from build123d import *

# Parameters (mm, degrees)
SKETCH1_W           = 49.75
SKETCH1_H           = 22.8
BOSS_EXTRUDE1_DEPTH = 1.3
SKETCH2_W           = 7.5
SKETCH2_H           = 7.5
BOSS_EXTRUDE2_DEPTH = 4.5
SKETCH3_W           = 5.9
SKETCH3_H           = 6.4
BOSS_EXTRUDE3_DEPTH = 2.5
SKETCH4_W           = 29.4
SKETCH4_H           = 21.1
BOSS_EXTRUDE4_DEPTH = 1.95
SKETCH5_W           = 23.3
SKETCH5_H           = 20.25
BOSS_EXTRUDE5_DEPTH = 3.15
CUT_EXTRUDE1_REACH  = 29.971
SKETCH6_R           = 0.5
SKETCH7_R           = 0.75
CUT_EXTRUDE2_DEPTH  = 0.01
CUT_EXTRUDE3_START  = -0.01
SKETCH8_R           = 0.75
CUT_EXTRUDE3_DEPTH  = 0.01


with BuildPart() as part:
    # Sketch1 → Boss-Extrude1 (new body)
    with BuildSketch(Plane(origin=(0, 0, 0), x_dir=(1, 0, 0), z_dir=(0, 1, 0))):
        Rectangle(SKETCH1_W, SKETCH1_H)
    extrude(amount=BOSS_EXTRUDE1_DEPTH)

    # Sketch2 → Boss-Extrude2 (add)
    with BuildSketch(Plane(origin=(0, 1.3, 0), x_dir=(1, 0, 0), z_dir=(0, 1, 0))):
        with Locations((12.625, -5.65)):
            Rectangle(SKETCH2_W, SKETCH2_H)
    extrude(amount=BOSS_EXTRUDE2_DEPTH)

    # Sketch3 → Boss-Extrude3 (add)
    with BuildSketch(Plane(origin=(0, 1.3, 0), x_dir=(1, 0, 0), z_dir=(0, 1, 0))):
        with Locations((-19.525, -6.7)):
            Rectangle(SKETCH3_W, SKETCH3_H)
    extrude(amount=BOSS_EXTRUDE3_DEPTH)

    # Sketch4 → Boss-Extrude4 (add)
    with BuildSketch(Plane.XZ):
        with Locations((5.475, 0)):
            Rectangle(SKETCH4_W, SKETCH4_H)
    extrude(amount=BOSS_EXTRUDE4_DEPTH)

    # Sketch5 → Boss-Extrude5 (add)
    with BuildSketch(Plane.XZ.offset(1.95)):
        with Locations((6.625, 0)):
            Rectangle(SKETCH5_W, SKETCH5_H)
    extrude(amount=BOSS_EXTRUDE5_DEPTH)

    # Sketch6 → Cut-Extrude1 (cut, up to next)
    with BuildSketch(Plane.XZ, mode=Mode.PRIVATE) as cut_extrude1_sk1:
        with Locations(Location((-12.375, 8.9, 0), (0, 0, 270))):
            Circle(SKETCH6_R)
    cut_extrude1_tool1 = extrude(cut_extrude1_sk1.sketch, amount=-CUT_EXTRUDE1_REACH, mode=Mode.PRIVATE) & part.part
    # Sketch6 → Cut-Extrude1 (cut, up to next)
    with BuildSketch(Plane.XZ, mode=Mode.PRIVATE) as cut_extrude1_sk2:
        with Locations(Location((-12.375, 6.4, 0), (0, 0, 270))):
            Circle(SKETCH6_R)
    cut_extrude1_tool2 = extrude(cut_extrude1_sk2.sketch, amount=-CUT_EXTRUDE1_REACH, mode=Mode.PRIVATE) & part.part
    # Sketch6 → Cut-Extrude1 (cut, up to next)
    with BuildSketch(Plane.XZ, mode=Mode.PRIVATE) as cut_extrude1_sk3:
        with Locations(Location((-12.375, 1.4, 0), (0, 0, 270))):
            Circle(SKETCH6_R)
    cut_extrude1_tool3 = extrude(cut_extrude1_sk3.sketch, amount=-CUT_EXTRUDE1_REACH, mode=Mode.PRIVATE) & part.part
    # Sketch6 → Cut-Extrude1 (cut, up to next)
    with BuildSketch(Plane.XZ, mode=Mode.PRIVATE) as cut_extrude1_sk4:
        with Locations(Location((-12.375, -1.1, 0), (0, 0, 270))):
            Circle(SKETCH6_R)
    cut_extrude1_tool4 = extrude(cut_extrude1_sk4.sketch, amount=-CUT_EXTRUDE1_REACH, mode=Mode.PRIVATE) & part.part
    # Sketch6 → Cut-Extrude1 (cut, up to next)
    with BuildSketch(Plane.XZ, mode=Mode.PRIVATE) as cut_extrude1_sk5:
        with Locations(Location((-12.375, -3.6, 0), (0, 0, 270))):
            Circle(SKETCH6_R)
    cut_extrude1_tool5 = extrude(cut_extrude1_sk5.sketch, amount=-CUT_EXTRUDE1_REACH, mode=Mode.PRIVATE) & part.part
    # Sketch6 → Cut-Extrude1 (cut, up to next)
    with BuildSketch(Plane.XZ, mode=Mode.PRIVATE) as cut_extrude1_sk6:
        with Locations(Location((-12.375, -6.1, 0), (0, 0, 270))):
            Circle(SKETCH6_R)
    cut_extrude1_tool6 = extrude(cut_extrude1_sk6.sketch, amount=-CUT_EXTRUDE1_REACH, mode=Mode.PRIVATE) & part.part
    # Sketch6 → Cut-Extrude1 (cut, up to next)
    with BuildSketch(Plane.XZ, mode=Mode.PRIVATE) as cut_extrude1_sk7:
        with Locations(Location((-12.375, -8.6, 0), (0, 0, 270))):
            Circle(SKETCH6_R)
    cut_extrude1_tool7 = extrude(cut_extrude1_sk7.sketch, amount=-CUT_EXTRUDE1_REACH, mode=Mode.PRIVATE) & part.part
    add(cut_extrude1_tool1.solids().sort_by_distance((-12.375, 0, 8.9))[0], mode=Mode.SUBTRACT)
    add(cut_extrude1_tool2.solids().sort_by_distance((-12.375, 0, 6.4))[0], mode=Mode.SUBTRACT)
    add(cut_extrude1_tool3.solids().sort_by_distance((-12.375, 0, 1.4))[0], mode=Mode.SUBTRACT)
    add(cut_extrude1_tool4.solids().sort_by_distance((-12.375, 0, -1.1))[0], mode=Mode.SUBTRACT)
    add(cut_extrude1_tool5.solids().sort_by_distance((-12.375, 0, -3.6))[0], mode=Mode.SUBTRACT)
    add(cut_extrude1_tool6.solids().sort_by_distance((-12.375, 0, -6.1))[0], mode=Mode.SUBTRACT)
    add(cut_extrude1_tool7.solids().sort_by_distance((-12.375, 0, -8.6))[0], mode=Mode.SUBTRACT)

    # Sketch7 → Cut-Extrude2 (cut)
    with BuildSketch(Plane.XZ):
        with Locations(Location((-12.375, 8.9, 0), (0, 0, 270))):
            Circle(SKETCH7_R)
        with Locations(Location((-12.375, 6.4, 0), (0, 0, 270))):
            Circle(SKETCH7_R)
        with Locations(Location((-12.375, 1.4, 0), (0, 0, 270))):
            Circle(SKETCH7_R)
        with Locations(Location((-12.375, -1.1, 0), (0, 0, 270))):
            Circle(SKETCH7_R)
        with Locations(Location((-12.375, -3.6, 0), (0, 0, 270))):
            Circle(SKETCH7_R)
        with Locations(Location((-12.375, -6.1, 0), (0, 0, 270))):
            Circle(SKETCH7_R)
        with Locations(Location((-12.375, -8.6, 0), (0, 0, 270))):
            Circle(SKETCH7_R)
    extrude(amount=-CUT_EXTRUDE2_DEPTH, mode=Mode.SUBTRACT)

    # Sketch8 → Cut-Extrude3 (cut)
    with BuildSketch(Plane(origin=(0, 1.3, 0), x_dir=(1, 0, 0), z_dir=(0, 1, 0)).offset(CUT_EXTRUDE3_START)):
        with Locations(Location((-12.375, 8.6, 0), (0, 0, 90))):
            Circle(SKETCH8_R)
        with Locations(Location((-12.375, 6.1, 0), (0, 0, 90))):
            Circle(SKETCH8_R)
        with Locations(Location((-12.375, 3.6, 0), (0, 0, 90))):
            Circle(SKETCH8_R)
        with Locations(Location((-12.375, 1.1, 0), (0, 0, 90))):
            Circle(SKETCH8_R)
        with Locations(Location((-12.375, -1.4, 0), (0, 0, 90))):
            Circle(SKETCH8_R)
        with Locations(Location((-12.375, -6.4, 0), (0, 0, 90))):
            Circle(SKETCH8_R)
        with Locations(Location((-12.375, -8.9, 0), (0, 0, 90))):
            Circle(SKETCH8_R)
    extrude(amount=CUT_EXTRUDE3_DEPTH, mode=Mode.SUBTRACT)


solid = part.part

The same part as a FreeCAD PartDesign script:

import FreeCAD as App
import Part
import Sketcher
from FreeCAD import Vector
Q = App.Units.Quantity

doc = App.newDocument("Part")
body = doc.addObject("PartDesign::Body", "Body")

sketch1 = body.newObject("Sketcher::SketchObject", "Sketch")
sketch1.AttachmentSupport = (doc.getObject("XZ_Plane"), [""])
sketch1.MapMode = "FlatFace"
sketch1.addGeometry(Part.LineSegment(Vector(-24.875, -11.4, 0), Vector(-24.875, 11.4, 0)), False)
sketch1.addGeometry(Part.LineSegment(Vector(-24.875, 11.4, 0), Vector(24.875, 11.4, 0)), False)
sketch1.addGeometry(Part.LineSegment(Vector(24.875, 11.4, 0), Vector(24.875, -11.4, 0)), False)
sketch1.addGeometry(Part.LineSegment(Vector(24.875, -11.4, 0), Vector(-24.875, -11.4, 0)), False)
sketch1.addConstraint(Sketcher.Constraint("Coincident", 0, 2, 1, 1))
sketch1.addConstraint(Sketcher.Constraint("Coincident", 1, 2, 2, 1))
sketch1.addConstraint(Sketcher.Constraint("Coincident", 2, 2, 3, 1))
sketch1.addConstraint(Sketcher.Constraint("Coincident", 3, 2, 0, 1))
sketch1.addConstraint(Sketcher.Constraint("Vertical", 0))
sketch1.addConstraint(Sketcher.Constraint("Horizontal", 1))
sketch1.addConstraint(Sketcher.Constraint("Vertical", 2))
sketch1.addConstraint(Sketcher.Constraint("Horizontal", 3))
sketch1.addConstraint(Sketcher.Constraint("Symmetric", 0, 2, 2, 2, -1, 1))
sketch1.addConstraint(Sketcher.Constraint("DistanceY", 0, 1, 0, 2, Q("22.8 mm")))
sketch1.addConstraint(Sketcher.Constraint("DistanceX", 1, 1, 1, 2, Q("49.75 mm")))
pad1 = body.newObject("PartDesign::Pad", "Pad")
pad1.Profile = sketch1
pad1.Length = 1.3
pad1.Reversed = True

sketch2 = body.newObject("Sketcher::SketchObject", "Sketch001")
sketch2.AttachmentSupport = (doc.getObject("XZ_Plane"), [""])
sketch2.MapMode = "FlatFace"
sketch2.AttachmentOffset = App.Placement(Vector(0, 0, -1.3), App.Rotation())
sketch2.addGeometry(Part.LineSegment(Vector(8.875, 1.9, 0), Vector(8.875, 9.4, 0)), False)
sketch2.addGeometry(Part.LineSegment(Vector(8.875, 9.4, 0), Vector(16.375, 9.4, 0)), False)
sketch2.addGeometry(Part.LineSegment(Vector(16.375, 9.4, 0), Vector(16.375, 1.9, 0)), False)
sketch2.addGeometry(Part.LineSegment(Vector(16.375, 1.9, 0), Vector(8.875, 1.9, 0)), False)
sketch2.addConstraint(Sketcher.Constraint("Coincident", 0, 2, 1, 1))
sketch2.addConstraint(Sketcher.Constraint("Coincident", 1, 2, 2, 1))
sketch2.addConstraint(Sketcher.Constraint("Coincident", 2, 2, 3, 1))
sketch2.addConstraint(Sketcher.Constraint("Coincident", 3, 2, 0, 1))
sketch2.addConstraint(Sketcher.Constraint("Vertical", 0))
sketch2.addConstraint(Sketcher.Constraint("Horizontal", 1))
sketch2.addConstraint(Sketcher.Constraint("Vertical", 2))
sketch2.addConstraint(Sketcher.Constraint("Horizontal", 3))
sketch2.addConstraint(Sketcher.Constraint("Equal", 3, 0))
sketch2.addConstraint(Sketcher.Constraint("DistanceX", 1, 1, 1, 2, Q("7.5 mm")))
sketch2.addConstraint(Sketcher.Constraint("DistanceY", -1, 1, 0, 2, Q("9.4 mm")))
sketch2.addConstraint(Sketcher.Constraint("DistanceX", -1, 1, 0, 2, Q("8.875 mm")))
pad2 = body.newObject("PartDesign::Pad", "Pad001")
pad2.Profile = sketch2
pad2.Length = 4.5
pad2.Reversed = True

sketch3 = body.newObject("Sketcher::SketchObject", "Sketch002")
sketch3.AttachmentSupport = (doc.getObject("XZ_Plane"), [""])
sketch3.MapMode = "FlatFace"
sketch3.AttachmentOffset = App.Placement(Vector(0, 0, -1.3), App.Rotation())
sketch3.addGeometry(Part.LineSegment(Vector(-22.475, 3.5, 0), Vector(-22.475, 9.9, 0)), False)
sketch3.addGeometry(Part.LineSegment(Vector(-22.475, 9.9, 0), Vector(-16.575, 9.9, 0)), False)
sketch3.addGeometry(Part.LineSegment(Vector(-16.575, 9.9, 0), Vector(-16.575, 3.5, 0)), False)
sketch3.addGeometry(Part.LineSegment(Vector(-16.575, 3.5, 0), Vector(-22.475, 3.5, 0)), False)
sketch3.addConstraint(Sketcher.Constraint("Coincident", 0, 2, 1, 1))
sketch3.addConstraint(Sketcher.Constraint("Coincident", 1, 2, 2, 1))
sketch3.addConstraint(Sketcher.Constraint("Coincident", 2, 2, 3, 1))
sketch3.addConstraint(Sketcher.Constraint("Coincident", 3, 2, 0, 1))
sketch3.addConstraint(Sketcher.Constraint("Vertical", 0))
sketch3.addConstraint(Sketcher.Constraint("Horizontal", 1))
sketch3.addConstraint(Sketcher.Constraint("Vertical", 2))
sketch3.addConstraint(Sketcher.Constraint("Horizontal", 3))
sketch3.addConstraint(Sketcher.Constraint("DistanceX", 1, 1, 1, 2, Q("5.9 mm")))
sketch3.addConstraint(Sketcher.Constraint("DistanceY", 0, 1, 0, 2, Q("6.4 mm")))
sketch3.addConstraint(Sketcher.Constraint("DistanceY", -1, 1, 0, 2, Q("9.9 mm")))
sketch3.addConstraint(Sketcher.Constraint("DistanceX", 0, 2, -1, 1, Q("22.475 mm")))
pad3 = body.newObject("PartDesign::Pad", "Pad002")
pad3.Profile = sketch3
pad3.Length = 2.5
pad3.Reversed = True

sketch4 = body.newObject("Sketcher::SketchObject", "Sketch003")
sketch4.AttachmentSupport = (doc.getObject("XZ_Plane"), [""])
sketch4.MapMode = "FlatFace"
sketch4.addGeometry(Part.LineSegment(Vector(-9.225, 10.55, 0), Vector(-9.225, -10.55, 0)), False)
sketch4.addGeometry(Part.LineSegment(Vector(-9.225, -10.55, 0), Vector(20.175, -10.55, 0)), False)
sketch4.addGeometry(Part.LineSegment(Vector(20.175, -10.55, 0), Vector(20.175, 10.55, 0)), False)
sketch4.addGeometry(Part.LineSegment(Vector(20.175, 10.55, 0), Vector(-9.225, 10.55, 0)), False)
sketch4.addConstraint(Sketcher.Constraint("Coincident", 0, 2, 1, 1))
sketch4.addConstraint(Sketcher.Constraint("Coincident", 1, 2, 2, 1))
sketch4.addConstraint(Sketcher.Constraint("Coincident", 2, 2, 3, 1))
sketch4.addConstraint(Sketcher.Constraint("Coincident", 3, 2, 0, 1))
sketch4.addConstraint(Sketcher.Constraint("Vertical", 0))
sketch4.addConstraint(Sketcher.Constraint("Horizontal", 1))
sketch4.addConstraint(Sketcher.Constraint("Vertical", 2))
sketch4.addConstraint(Sketcher.Constraint("Horizontal", 3))
sketch4.addConstraint(Sketcher.Constraint("DistanceX", 1, 1, 1, 2, Q("29.4 mm")))
sketch4.addConstraint(Sketcher.Constraint("DistanceY", 0, 2, 0, 1, Q("21.1 mm")))
sketch4.addConstraint(Sketcher.Constraint("DistanceY", 0, 2, -1, 1, Q("10.55 mm")))
sketch4.addConstraint(Sketcher.Constraint("DistanceX", 0, 2, -1, 1, Q("9.225 mm")))
pad4 = body.newObject("PartDesign::Pad", "Pad003")
pad4.Profile = sketch4
pad4.Length = 1.95

sketch5 = body.newObject("Sketcher::SketchObject", "Sketch004")
sketch5.AttachmentSupport = (doc.getObject("XZ_Plane"), [""])
sketch5.MapMode = "FlatFace"
sketch5.AttachmentOffset = App.Placement(Vector(0, 0, 1.95), App.Rotation())
sketch5.addGeometry(Part.LineSegment(Vector(-5.025, 10.125, 0), Vector(-5.025, -10.125, 0)), False)
sketch5.addGeometry(Part.LineSegment(Vector(-5.025, -10.125, 0), Vector(18.275, -10.125, 0)), False)
sketch5.addGeometry(Part.LineSegment(Vector(18.275, -10.125, 0), Vector(18.275, 10.125, 0)), False)
sketch5.addGeometry(Part.LineSegment(Vector(18.275, 10.125, 0), Vector(-5.025, 10.125, 0)), False)
sketch5.addConstraint(Sketcher.Constraint("Coincident", 0, 2, 1, 1))
sketch5.addConstraint(Sketcher.Constraint("Coincident", 1, 2, 2, 1))
sketch5.addConstraint(Sketcher.Constraint("Coincident", 2, 2, 3, 1))
sketch5.addConstraint(Sketcher.Constraint("Coincident", 3, 2, 0, 1))
sketch5.addConstraint(Sketcher.Constraint("Vertical", 0))
sketch5.addConstraint(Sketcher.Constraint("Horizontal", 1))
sketch5.addConstraint(Sketcher.Constraint("Vertical", 2))
sketch5.addConstraint(Sketcher.Constraint("Horizontal", 3))
sketch5.addConstraint(Sketcher.Constraint("DistanceX", 1, 1, 1, 2, Q("23.3 mm")))
sketch5.addConstraint(Sketcher.Constraint("DistanceY", 0, 2, 0, 1, Q("20.25 mm")))
sketch5.addConstraint(Sketcher.Constraint("DistanceX", 0, 2, -1, 1, Q("5.025 mm")))
sketch5.addConstraint(Sketcher.Constraint("DistanceY", 0, 2, -1, 1, Q("10.125 mm")))
pad5 = body.newObject("PartDesign::Pad", "Pad004")
pad5.Profile = sketch5
pad5.Length = 3.15

sketch6 = body.newObject("Sketcher::SketchObject", "Sketch005")
sketch6.AttachmentSupport = (doc.getObject("XZ_Plane"), [""])
sketch6.MapMode = "FlatFace"
sketch6.addGeometry(Part.Circle(Vector(-12.375, 8.9, 0), Vector(0, 0, 1), 0.5), False)
sketch6.addConstraint(Sketcher.Constraint("Diameter", 0, Q("1 mm")))
sketch6.addConstraint(Sketcher.Constraint("DistanceY", -1, 1, 0, 3, Q("8.9 mm")))
sketch6.addConstraint(Sketcher.Constraint("DistanceX", 0, 3, -1, 1, Q("12.375 mm")))
pocket1 = body.newObject("PartDesign::Pocket", "Pocket")
pocket1.Profile = sketch6
pocket1.Type = "UpToFirst"

sketch7 = body.newObject("Sketcher::SketchObject", "Sketch006")
sketch7.AttachmentSupport = (doc.getObject("XZ_Plane"), [""])
sketch7.MapMode = "FlatFace"
sketch7.addGeometry(Part.Circle(Vector(-12.375, 6.4, 0), Vector(0, 0, 1), 0.5), False)
sketch7.addConstraint(Sketcher.Constraint("Diameter", 0, Q("1 mm")))
sketch7.addConstraint(Sketcher.Constraint("DistanceY", -1, 1, 0, 3, Q("6.4 mm")))
sketch7.addConstraint(Sketcher.Constraint("DistanceX", 0, 3, -1, 1, Q("12.375 mm")))
pocket2 = body.newObject("PartDesign::Pocket", "Pocket001")
pocket2.Profile = sketch7
pocket2.Type = "UpToFirst"

sketch8 = body.newObject("Sketcher::SketchObject", "Sketch007")
sketch8.AttachmentSupport = (doc.getObject("XZ_Plane"), [""])
sketch8.MapMode = "FlatFace"
sketch8.addGeometry(Part.Circle(Vector(-12.375, 1.4, 0), Vector(0, 0, 1), 0.5), False)
sketch8.addConstraint(Sketcher.Constraint("Diameter", 0, Q("1 mm")))
sketch8.addConstraint(Sketcher.Constraint("DistanceY", -1, 1, 0, 3, Q("1.4 mm")))
sketch8.addConstraint(Sketcher.Constraint("DistanceX", 0, 3, -1, 1, Q("12.375 mm")))
pocket3 = body.newObject("PartDesign::Pocket", "Pocket002")
pocket3.Profile = sketch8
pocket3.Type = "UpToFirst"

sketch9 = body.newObject("Sketcher::SketchObject", "Sketch008")
sketch9.AttachmentSupport = (doc.getObject("XZ_Plane"), [""])
sketch9.MapMode = "FlatFace"
sketch9.addGeometry(Part.Circle(Vector(-12.375, -1.1, 0), Vector(0, 0, 1), 0.5), False)
sketch9.addConstraint(Sketcher.Constraint("Diameter", 0, Q("1 mm")))
sketch9.addConstraint(Sketcher.Constraint("DistanceY", 0, 3, -1, 1, Q("1.1 mm")))
sketch9.addConstraint(Sketcher.Constraint("DistanceX", 0, 3, -1, 1, Q("12.375 mm")))
pocket4 = body.newObject("PartDesign::Pocket", "Pocket003")
pocket4.Profile = sketch9
pocket4.Type = "UpToFirst"

sketch10 = body.newObject("Sketcher::SketchObject", "Sketch009")
sketch10.AttachmentSupport = (doc.getObject("XZ_Plane"), [""])
sketch10.MapMode = "FlatFace"
sketch10.addGeometry(Part.Circle(Vector(-12.375, -3.6, 0), Vector(0, 0, 1), 0.5), False)
sketch10.addConstraint(Sketcher.Constraint("Diameter", 0, Q("1 mm")))
sketch10.addConstraint(Sketcher.Constraint("DistanceY", 0, 3, -1, 1, Q("3.6 mm")))
sketch10.addConstraint(Sketcher.Constraint("DistanceX", 0, 3, -1, 1, Q("12.375 mm")))
pocket5 = body.newObject("PartDesign::Pocket", "Pocket004")
pocket5.Profile = sketch10
pocket5.Type = "UpToFirst"

sketch11 = body.newObject("Sketcher::SketchObject", "Sketch010")
sketch11.AttachmentSupport = (doc.getObject("XZ_Plane"), [""])
sketch11.MapMode = "FlatFace"
sketch11.addGeometry(Part.Circle(Vector(-12.375, -6.1, 0), Vector(0, 0, 1), 0.5), False)
sketch11.addConstraint(Sketcher.Constraint("Diameter", 0, Q("1 mm")))
sketch11.addConstraint(Sketcher.Constraint("DistanceY", 0, 3, -1, 1, Q("6.1 mm")))
sketch11.addConstraint(Sketcher.Constraint("DistanceX", 0, 3, -1, 1, Q("12.375 mm")))
pocket6 = body.newObject("PartDesign::Pocket", "Pocket005")
pocket6.Profile = sketch11
pocket6.Type = "UpToFirst"

sketch12 = body.newObject("Sketcher::SketchObject", "Sketch011")
sketch12.AttachmentSupport = (doc.getObject("XZ_Plane"), [""])
sketch12.MapMode = "FlatFace"
sketch12.addGeometry(Part.Circle(Vector(-12.375, -8.6, 0), Vector(0, 0, 1), 0.5), False)
sketch12.addConstraint(Sketcher.Constraint("Diameter", 0, Q("1 mm")))
sketch12.addConstraint(Sketcher.Constraint("DistanceY", 0, 3, -1, 1, Q("8.6 mm")))
sketch12.addConstraint(Sketcher.Constraint("DistanceX", 0, 3, -1, 1, Q("12.375 mm")))
pocket7 = body.newObject("PartDesign::Pocket", "Pocket006")
pocket7.Profile = sketch12
pocket7.Type = "UpToFirst"

sketch13 = body.newObject("Sketcher::SketchObject", "Sketch012")
sketch13.AttachmentSupport = (doc.getObject("XZ_Plane"), [""])
sketch13.MapMode = "FlatFace"
sketch13.addGeometry(Part.Circle(Vector(-12.375, 8.9, 0), Vector(0, 0, 1), 0.75), False)
sketch13.addGeometry(Part.Circle(Vector(-12.375, 6.4, 0), Vector(0, 0, 1), 0.75), False)
sketch13.addGeometry(Part.Circle(Vector(-12.375, 1.4, 0), Vector(0, 0, 1), 0.75), False)
sketch13.addGeometry(Part.Circle(Vector(-12.375, -1.1, 0), Vector(0, 0, 1), 0.75), False)
sketch13.addGeometry(Part.Circle(Vector(-12.375, -3.6, 0), Vector(0, 0, 1), 0.75), False)
sketch13.addGeometry(Part.Circle(Vector(-12.375, -6.1, 0), Vector(0, 0, 1), 0.75), False)
sketch13.addGeometry(Part.Circle(Vector(-12.375, -8.6, 0), Vector(0, 0, 1), 0.75), False)
sketch13.addConstraint(Sketcher.Constraint("Equal", 0, 1))
sketch13.addConstraint(Sketcher.Constraint("Equal", 1, 2))
sketch13.addConstraint(Sketcher.Constraint("Equal", 2, 3))
sketch13.addConstraint(Sketcher.Constraint("Equal", 3, 4))
sketch13.addConstraint(Sketcher.Constraint("Equal", 4, 5))
sketch13.addConstraint(Sketcher.Constraint("Equal", 5, 6))
sketch13.addConstraint(Sketcher.Constraint("Vertical", 0, 3, 1, 3))
sketch13.addConstraint(Sketcher.Constraint("Vertical", 1, 3, 2, 3))
sketch13.addConstraint(Sketcher.Constraint("Vertical", 2, 3, 3, 3))
sketch13.addConstraint(Sketcher.Constraint("Vertical", 3, 3, 4, 3))
sketch13.addConstraint(Sketcher.Constraint("Vertical", 4, 3, 5, 3))
sketch13.addConstraint(Sketcher.Constraint("Vertical", 5, 3, 6, 3))
sketch13.addConstraint(Sketcher.Constraint("Diameter", 0, Q("1.5 mm")))
sketch13.addConstraint(Sketcher.Constraint("DistanceY", 2, 3, 1, 3, Q("5 mm")))
sketch13.addConstraint(Sketcher.Constraint("DistanceY", 3, 3, 0, 3, Q("10 mm")))
sketch13.addConstraint(Sketcher.Constraint("DistanceY", 4, 3, 2, 3, Q("5 mm")))
sketch13.addConstraint(Sketcher.Constraint("DistanceY", 5, 3, 3, 3, Q("5 mm")))
sketch13.addConstraint(Sketcher.Constraint("DistanceY", 6, 3, 4, 3, Q("5 mm")))
sketch13.addConstraint(Sketcher.Constraint("DistanceY", -1, 1, 0, 3, Q("8.9 mm")))
sketch13.addConstraint(Sketcher.Constraint("DistanceY", -1, 1, 1, 3, Q("6.4 mm")))
sketch13.addConstraint(Sketcher.Constraint("DistanceX", 0, 3, -1, 1, Q("12.375 mm")))
pocket8 = body.newObject("PartDesign::Pocket", "Pocket007")
pocket8.Profile = sketch13
pocket8.Length = 0.01

sketch14 = body.newObject("Sketcher::SketchObject", "Sketch013")
sketch14.AttachmentSupport = (doc.getObject("XZ_Plane"), [""])
sketch14.MapMode = "FlatFace"
sketch14.AttachmentOffset = App.Placement(Vector(0, 0, -1.29), App.Rotation())
sketch14.addGeometry(Part.Circle(Vector(-12.375, -8.6, 0), Vector(0, 0, 1), 0.75), False)
sketch14.addGeometry(Part.Circle(Vector(-12.375, -6.1, 0), Vector(0, 0, 1), 0.75), False)
sketch14.addGeometry(Part.Circle(Vector(-12.375, -3.6, 0), Vector(0, 0, 1), 0.75), False)
sketch14.addGeometry(Part.Circle(Vector(-12.375, -1.1, 0), Vector(0, 0, 1), 0.75), False)
sketch14.addGeometry(Part.Circle(Vector(-12.375, 1.4, 0), Vector(0, 0, 1), 0.75), False)
sketch14.addGeometry(Part.Circle(Vector(-12.375, 6.4, 0), Vector(0, 0, 1), 0.75), False)
sketch14.addGeometry(Part.Circle(Vector(-12.375, 8.9, 0), Vector(0, 0, 1), 0.75), False)
sketch14.addConstraint(Sketcher.Constraint("Equal", 0, 1))
sketch14.addConstraint(Sketcher.Constraint("Equal", 1, 2))
sketch14.addConstraint(Sketcher.Constraint("Equal", 2, 3))
sketch14.addConstraint(Sketcher.Constraint("Equal", 3, 4))
sketch14.addConstraint(Sketcher.Constraint("Equal", 4, 5))
sketch14.addConstraint(Sketcher.Constraint("Equal", 5, 6))
sketch14.addConstraint(Sketcher.Constraint("Vertical", 0, 3, 1, 3))
sketch14.addConstraint(Sketcher.Constraint("Vertical", 1, 3, 2, 3))
sketch14.addConstraint(Sketcher.Constraint("Vertical", 2, 3, 3, 3))
sketch14.addConstraint(Sketcher.Constraint("Vertical", 3, 3, 4, 3))
sketch14.addConstraint(Sketcher.Constraint("Vertical", 4, 3, 5, 3))
sketch14.addConstraint(Sketcher.Constraint("Vertical", 5, 3, 6, 3))
sketch14.addConstraint(Sketcher.Constraint("Diameter", 0, Q("1.5 mm")))
sketch14.addConstraint(Sketcher.Constraint("DistanceY", 0, 3, 2, 3, Q("5 mm")))
sketch14.addConstraint(Sketcher.Constraint("DistanceY", 1, 3, 3, 3, Q("5 mm")))
sketch14.addConstraint(Sketcher.Constraint("DistanceY", 2, 3, 4, 3, Q("5 mm")))
sketch14.addConstraint(Sketcher.Constraint("DistanceY", 4, 3, 5, 3, Q("5 mm")))
sketch14.addConstraint(Sketcher.Constraint("DistanceY", 3, 3, 6, 3, Q("10 mm")))
sketch14.addConstraint(Sketcher.Constraint("DistanceY", 0, 3, -1, 1, Q("8.6 mm")))
sketch14.addConstraint(Sketcher.Constraint("DistanceY", 1, 3, -1, 1, Q("6.1 mm")))
sketch14.addConstraint(Sketcher.Constraint("DistanceX", 0, 3, -1, 1, Q("12.375 mm")))
pocket9 = body.newObject("PartDesign::Pocket", "Pocket008")
pocket9.Profile = sketch14
pocket9.Length = 0.01

doc.recompute()
